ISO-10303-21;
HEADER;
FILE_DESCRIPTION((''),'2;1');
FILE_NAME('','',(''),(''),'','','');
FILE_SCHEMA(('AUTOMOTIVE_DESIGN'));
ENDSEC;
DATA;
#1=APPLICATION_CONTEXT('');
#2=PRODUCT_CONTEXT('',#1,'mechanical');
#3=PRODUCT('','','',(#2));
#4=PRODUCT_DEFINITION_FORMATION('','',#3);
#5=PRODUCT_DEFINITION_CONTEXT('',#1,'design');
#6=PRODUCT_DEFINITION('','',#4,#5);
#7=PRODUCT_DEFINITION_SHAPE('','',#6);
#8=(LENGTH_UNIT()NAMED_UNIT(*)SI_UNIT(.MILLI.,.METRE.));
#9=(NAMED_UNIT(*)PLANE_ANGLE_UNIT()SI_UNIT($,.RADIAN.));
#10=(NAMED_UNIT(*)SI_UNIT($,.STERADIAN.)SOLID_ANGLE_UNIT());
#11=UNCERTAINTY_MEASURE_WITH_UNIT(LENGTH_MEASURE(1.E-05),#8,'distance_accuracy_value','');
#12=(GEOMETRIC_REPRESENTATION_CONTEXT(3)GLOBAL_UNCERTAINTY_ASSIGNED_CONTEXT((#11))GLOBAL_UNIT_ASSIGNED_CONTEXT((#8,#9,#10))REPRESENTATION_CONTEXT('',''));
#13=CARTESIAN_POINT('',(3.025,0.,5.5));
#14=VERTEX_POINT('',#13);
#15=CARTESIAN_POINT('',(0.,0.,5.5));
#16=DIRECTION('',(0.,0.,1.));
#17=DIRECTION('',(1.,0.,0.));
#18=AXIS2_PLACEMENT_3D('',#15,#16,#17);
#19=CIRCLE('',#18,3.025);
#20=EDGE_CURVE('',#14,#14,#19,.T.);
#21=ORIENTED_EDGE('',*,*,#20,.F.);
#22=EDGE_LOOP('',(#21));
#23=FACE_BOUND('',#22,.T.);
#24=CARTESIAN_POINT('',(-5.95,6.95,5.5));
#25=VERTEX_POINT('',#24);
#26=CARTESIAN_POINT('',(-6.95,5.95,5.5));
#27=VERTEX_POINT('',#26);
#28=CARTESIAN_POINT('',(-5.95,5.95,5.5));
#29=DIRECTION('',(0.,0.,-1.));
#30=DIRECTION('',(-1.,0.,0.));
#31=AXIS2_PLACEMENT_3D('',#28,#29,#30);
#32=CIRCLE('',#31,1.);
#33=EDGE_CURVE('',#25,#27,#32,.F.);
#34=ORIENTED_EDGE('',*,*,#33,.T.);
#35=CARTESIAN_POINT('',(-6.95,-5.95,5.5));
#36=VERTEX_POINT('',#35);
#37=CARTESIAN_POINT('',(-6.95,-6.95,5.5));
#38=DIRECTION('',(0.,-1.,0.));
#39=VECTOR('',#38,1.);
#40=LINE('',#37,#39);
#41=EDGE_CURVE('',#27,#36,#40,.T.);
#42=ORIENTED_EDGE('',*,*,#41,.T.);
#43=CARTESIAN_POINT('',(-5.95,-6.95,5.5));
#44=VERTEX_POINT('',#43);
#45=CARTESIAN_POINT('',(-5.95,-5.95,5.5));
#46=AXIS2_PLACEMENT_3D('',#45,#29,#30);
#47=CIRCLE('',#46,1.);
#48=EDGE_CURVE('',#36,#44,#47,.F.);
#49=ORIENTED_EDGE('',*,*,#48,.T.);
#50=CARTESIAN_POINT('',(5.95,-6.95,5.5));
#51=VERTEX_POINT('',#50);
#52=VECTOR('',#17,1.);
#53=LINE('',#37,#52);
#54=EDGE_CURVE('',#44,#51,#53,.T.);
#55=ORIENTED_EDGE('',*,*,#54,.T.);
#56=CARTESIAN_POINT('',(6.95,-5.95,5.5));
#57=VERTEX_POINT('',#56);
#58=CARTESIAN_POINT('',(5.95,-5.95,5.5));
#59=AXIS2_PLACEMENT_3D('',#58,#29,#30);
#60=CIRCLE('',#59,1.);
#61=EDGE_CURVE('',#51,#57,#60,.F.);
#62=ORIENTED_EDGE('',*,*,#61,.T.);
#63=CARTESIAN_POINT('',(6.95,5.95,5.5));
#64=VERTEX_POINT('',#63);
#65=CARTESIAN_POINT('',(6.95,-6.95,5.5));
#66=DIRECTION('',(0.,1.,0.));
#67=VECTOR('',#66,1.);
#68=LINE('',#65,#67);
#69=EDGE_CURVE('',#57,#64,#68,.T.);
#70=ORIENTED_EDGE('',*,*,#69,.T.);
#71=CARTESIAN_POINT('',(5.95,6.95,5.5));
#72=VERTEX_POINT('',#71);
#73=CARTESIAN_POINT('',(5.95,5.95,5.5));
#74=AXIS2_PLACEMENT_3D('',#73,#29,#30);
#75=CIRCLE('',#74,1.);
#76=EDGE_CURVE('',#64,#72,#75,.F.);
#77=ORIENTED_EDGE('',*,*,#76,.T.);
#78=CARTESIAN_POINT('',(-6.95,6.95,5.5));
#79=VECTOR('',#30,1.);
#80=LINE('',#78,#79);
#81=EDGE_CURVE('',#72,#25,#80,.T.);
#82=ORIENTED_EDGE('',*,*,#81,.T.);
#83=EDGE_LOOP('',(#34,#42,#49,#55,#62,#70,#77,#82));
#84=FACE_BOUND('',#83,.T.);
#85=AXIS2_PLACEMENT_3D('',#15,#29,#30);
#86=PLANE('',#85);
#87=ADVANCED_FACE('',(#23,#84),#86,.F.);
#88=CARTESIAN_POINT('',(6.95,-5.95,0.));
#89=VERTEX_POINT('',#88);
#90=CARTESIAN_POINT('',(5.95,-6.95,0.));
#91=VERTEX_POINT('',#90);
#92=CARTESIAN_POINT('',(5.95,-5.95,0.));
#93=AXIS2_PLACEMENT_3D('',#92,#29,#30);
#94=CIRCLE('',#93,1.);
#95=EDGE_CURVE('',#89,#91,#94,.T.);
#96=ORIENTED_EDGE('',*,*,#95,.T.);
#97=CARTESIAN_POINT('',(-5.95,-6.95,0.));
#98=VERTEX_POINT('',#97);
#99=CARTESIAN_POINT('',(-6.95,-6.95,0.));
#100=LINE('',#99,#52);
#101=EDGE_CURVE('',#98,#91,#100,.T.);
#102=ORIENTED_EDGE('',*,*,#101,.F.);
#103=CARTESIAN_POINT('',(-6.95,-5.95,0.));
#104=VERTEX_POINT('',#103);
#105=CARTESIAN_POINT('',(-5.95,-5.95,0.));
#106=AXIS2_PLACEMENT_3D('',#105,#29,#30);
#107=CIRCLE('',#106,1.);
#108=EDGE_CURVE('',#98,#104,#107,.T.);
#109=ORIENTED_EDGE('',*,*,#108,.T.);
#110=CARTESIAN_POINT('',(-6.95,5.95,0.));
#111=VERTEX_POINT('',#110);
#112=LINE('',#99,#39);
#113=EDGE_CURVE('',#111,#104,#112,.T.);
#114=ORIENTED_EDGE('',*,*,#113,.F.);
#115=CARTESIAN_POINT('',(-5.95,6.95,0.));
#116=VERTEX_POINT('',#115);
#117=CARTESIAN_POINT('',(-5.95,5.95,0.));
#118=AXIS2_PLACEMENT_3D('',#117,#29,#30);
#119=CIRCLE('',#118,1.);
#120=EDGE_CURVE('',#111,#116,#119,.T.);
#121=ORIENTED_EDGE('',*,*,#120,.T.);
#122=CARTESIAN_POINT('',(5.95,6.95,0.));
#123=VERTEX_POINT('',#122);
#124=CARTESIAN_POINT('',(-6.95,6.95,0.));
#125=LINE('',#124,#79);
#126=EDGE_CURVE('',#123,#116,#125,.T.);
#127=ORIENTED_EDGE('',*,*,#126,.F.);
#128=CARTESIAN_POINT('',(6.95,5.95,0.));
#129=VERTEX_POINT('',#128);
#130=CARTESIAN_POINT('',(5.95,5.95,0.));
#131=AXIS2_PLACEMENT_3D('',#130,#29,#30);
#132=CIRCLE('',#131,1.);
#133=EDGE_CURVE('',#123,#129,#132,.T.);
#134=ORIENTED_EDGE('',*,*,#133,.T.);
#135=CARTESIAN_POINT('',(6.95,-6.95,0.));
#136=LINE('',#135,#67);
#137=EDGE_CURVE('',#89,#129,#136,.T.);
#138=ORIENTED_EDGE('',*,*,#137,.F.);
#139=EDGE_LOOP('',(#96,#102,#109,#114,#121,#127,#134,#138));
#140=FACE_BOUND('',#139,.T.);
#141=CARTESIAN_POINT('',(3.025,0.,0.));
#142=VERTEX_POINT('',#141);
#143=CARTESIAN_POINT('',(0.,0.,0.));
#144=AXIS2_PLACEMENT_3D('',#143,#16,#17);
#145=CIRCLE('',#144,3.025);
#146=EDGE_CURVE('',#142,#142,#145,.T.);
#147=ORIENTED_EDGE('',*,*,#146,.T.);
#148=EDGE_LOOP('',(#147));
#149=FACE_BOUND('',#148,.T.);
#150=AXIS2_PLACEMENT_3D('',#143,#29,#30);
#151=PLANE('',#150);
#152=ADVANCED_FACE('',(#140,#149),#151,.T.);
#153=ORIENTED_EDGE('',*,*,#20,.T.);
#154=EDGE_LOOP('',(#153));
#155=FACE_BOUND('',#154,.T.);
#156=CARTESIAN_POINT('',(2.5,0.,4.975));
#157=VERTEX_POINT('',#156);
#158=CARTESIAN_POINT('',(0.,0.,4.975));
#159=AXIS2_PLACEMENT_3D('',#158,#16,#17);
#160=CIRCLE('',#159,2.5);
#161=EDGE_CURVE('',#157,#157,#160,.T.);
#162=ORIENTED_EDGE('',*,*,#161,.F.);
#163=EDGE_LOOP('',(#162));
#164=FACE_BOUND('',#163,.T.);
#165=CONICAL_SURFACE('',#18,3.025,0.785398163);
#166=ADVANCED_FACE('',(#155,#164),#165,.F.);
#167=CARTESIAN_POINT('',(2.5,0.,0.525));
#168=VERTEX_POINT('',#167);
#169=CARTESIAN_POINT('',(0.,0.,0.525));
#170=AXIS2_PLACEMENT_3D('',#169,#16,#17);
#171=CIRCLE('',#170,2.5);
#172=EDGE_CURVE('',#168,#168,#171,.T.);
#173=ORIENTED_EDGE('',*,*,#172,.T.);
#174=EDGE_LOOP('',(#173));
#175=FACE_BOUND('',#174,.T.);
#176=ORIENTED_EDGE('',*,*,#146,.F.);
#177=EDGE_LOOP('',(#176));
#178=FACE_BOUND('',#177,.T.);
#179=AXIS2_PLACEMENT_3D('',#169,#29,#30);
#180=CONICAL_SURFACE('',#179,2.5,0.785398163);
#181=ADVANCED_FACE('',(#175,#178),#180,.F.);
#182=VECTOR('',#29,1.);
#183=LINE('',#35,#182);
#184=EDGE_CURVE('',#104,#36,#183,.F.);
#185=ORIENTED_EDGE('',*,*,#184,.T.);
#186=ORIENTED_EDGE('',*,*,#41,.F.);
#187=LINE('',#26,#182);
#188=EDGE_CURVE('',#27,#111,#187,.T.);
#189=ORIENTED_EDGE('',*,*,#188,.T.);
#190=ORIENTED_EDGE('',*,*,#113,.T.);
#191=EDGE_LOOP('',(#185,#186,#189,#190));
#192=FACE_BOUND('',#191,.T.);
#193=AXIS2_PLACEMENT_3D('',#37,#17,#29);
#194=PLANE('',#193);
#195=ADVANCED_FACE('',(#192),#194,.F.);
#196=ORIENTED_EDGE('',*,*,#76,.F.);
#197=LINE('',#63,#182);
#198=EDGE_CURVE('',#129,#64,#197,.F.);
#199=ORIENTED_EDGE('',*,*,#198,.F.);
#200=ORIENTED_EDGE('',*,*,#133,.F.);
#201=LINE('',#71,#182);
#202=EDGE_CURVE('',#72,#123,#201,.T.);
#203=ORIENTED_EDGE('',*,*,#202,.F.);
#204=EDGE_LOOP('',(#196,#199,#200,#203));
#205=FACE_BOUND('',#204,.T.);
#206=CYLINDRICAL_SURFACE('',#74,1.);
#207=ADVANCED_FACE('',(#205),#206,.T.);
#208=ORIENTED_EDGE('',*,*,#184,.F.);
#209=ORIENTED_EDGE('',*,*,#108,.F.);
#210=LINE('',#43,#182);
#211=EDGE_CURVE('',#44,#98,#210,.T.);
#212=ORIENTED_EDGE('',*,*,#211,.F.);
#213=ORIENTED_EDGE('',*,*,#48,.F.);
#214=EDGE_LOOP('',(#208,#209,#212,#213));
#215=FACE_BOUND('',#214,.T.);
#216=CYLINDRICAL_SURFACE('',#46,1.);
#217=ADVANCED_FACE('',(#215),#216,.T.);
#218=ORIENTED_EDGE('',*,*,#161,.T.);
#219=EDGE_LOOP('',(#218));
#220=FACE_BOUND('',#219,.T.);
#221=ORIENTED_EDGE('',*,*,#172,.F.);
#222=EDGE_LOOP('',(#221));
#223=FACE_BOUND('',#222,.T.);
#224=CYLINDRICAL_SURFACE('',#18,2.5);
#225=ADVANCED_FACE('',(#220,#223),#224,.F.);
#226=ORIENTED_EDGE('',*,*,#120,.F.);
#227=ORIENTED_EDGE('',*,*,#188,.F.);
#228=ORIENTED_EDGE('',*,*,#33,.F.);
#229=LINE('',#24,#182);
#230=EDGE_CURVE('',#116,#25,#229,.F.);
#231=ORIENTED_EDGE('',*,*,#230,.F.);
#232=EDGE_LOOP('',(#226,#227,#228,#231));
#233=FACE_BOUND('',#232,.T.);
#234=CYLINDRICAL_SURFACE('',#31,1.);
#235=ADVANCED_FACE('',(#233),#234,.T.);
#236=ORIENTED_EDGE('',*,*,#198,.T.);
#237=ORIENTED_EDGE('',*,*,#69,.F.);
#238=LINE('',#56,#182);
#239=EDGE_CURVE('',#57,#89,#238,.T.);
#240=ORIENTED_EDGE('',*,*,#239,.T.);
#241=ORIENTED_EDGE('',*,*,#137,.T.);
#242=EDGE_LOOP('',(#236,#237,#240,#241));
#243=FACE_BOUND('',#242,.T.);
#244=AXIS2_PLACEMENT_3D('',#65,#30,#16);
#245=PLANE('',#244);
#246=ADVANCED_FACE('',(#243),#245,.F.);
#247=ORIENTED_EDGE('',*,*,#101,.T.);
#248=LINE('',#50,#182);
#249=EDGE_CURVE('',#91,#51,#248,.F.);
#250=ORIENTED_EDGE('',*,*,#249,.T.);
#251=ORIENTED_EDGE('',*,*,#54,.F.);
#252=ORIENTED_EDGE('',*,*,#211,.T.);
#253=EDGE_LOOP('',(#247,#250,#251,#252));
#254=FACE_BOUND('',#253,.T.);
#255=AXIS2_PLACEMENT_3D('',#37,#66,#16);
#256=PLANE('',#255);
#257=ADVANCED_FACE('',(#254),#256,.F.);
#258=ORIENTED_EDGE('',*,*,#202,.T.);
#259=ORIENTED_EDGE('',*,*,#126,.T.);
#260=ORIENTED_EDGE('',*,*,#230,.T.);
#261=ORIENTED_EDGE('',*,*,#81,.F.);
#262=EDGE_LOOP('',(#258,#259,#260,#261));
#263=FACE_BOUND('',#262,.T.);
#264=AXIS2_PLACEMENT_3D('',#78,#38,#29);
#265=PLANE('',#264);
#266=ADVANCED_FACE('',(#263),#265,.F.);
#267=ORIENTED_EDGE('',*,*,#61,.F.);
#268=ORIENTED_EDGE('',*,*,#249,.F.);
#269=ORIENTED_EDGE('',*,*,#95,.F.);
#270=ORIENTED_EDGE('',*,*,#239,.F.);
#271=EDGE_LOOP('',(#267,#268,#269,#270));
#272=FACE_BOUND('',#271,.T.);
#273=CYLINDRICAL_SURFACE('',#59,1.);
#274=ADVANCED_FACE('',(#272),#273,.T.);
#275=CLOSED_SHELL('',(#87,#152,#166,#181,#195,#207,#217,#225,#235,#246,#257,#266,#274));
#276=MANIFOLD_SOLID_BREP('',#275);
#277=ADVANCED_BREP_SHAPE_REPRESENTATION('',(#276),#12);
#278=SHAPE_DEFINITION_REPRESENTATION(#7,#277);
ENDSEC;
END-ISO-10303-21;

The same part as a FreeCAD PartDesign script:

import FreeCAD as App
import Part
import Sketcher
from FreeCAD import Vector


def edges_at(feature, points):
    """Names of the edges that pass closest to the given points."""
    edges = feature.Shape.Edges
    near = lambda p: min(range(len(edges)), key=lambda i: edges[i].distToShape(Part.Vertex(*p))[0])
    return sorted({f"Edge{near(p) + 1}" for p in points})

doc = App.newDocument("Part")
body = doc.addObject("PartDesign::Body", "Body")

# Sketch on XY plane
sketch1 = body.newObject("Sketcher::SketchObject", "Sketch")
sketch1.AttachmentSupport = (doc.getObject("XY_Plane"), [""])
sketch1.MapMode = "FlatFace"
sketch1.addGeometry([
    Part.LineSegment(Vector(-7, 7, 0), Vector(-7, -7, 0)),
    Part.LineSegment(Vector(-7, -7, 0), Vector(7, -7, 0)),
    Part.LineSegment(Vector(7, -7, 0), Vector(7, 7, 0)),
    Part.LineSegment(Vector(7, 7, 0), Vector(-7, 7, 0)),
], False)
sketch1.addConstraint([
    Sketcher.Constraint("Coincident", 0, 2, 1, 1),
    Sketcher.Constraint("Coincident", 1, 2, 2, 1),
    Sketcher.Constraint("Coincident", 2, 2, 3, 1),
    Sketcher.Constraint("Coincident", 3, 2, 0, 1),
    Sketcher.Constraint("Vertical", 0),
    Sketcher.Constraint("Horizontal", 1),
    Sketcher.Constraint("Vertical", 2),
    Sketcher.Constraint("Horizontal", 3),
    Sketcher.Constraint("Symmetric", 0, 2, 2, 2, -1, 1),
    Sketcher.Constraint("Equal", 3, 0),
    Sketcher.Constraint("DistanceX", 1, 1, 1, 2, 13.9),
])
pad1 = body.newObject("PartDesign::Pad", "Pad")
pad1.Profile = sketch1
pad1.Length = 5.5

# Sketch on YZ plane
sketch2 = body.newObject("Sketcher::SketchObject", "Sketch001")
sketch2.AttachmentSupport = (doc.getObject("YZ_Plane"), [""])
sketch2.MapMode = "FlatFace"
sketch2.addGeometry([
    Part.LineSegment(Vector(0, 0, 0), Vector(0, 5.5, 0)),  # 0
    Part.LineSegment(Vector(0, 5.5, 0), Vector(-3, 5.5, 0)),  # 1
    Part.LineSegment(Vector(-3, 5.5, 0), Vector(-2.5, 5, 0)),  # 2
    Part.LineSegment(Vector(-2.5, 5, 0), Vector(-2.5, 0.5, 0)),  # 3
    Part.LineSegment(Vector(-2.5, 0.5, 0), Vector(-3, 0, 0)),  # 4
    Part.LineSegment(Vector(-3, 0, 0), Vector(0, 0, 0)),  # 5
], False)
sketch2.addConstraint([
    Sketcher.Constraint("Coincident", 0, 2, 1, 1),
    Sketcher.Constraint("Coincident", 1, 2, 2, 1),
    Sketcher.Constraint("Coincident", 2, 2, 3, 1),
    Sketcher.Constraint("Coincident", 3, 2, 4, 1),
    Sketcher.Constraint("Coincident", 4, 2, 5, 1),
    Sketcher.Constraint("Coincident", 5, 2, 0, 1),
    Sketcher.Constraint("Vertical", 0),
    Sketcher.Constraint("Horizontal", 1),
    Sketcher.Constraint("Vertical", 3),
    Sketcher.Constraint("Horizontal", 5),
    Sketcher.Constraint("Coincident", 5, 2, -1, 1),
    Sketcher.Constraint("Perpendicular", 2, 4),
    Sketcher.Constraint("Vertical", 1, 2, 4, 2),
    Sketcher.Constraint("Equal", 2, 4),
    Sketcher.Constraint("DistanceY", 0, 1, 0, 2, 5.5),
    Sketcher.Constraint("DistanceY", 3, 2, 3, 1, 4.45),
    Sketcher.Constraint("DistanceX", 2, 2, -1, 1, 2.5),
])
groove = body.newObject("PartDesign::Groove", "Groove")
groove.Profile = sketch2
groove.ReferenceAxis = (sketch2, ["V_Axis"])
groove.Angle = 360
doc.recompute()

fillet = body.newObject("PartDesign::Fillet", "Fillet")
fillet.Base = (groove, edges_at(groove, [
    (6.95, -6.95, 2.75),
    (-6.95, -6.95, 2.75),
    (-6.95, 6.95, 2.75),
    (6.95, 6.95, 2.75),
]))
fillet.Radius = 1

doc.recompute()
